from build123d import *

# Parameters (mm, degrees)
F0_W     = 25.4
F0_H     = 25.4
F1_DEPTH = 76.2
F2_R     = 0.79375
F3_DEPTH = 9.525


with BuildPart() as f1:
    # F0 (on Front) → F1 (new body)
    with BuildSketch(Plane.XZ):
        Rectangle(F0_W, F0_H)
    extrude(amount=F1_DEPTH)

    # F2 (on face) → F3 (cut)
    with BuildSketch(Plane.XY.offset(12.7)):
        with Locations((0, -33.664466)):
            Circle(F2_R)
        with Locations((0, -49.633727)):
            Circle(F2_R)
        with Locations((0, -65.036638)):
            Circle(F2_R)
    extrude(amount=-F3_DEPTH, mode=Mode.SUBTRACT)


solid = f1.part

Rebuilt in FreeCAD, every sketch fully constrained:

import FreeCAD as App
import Part
import Sketcher
from FreeCAD import Vector
Q = App.Units.Quantity


def add_polygon(sketch, points):
    """Adds a closed chain of lines whose ends are joined by coincident constraints."""
    first, n = sketch.GeometryCount, len(points)
    for a, b in zip(points, points[1:] + points[:1]):
        sketch.addGeometry(Part.LineSegment(App.Vector(*a, 0), App.Vector(*b, 0)), False)
    for i in range(n):
        sketch.addConstraint(Sketcher.Constraint("Coincident", first + i, 2, first + (i + 1) % n, 1))

doc = App.newDocument("Part")
params = doc.addObject("Spreadsheet::Sheet", "Params")
for row, (alias, value) in enumerate([
    ("sketch1_width", "1 in"),
    ("pad1_length", "3 in"),
    ("sketch2_diameter", "0.0625 in"),
    ("pocket1_length", "0.375 in"),
], start=1):
    params.set(f"A{row}", alias)
    params.set(f"B{row}", "=" + value)
    params.setAlias(f"B{row}", alias)

body = doc.addObject("PartDesign::Body", "Body")

# Sketch on XZ plane
sketch1 = body.newObject("Sketcher::SketchObject", "Sketch")
sketch1.AttachmentSupport = (doc.getObject("XZ_Plane"), [""])
sketch1.MapMode = "FlatFace"
add_polygon(sketch1, [(-12.7, 12.7), (-12.7, -12.7), (12.7, -12.7), (12.7, 12.7)])  # lines 0-3
sketch1.addConstraint(Sketcher.Constraint("Vertical", 0))
sketch1.addConstraint(Sketcher.Constraint("Horizontal", 1))
sketch1.addConstraint(Sketcher.Constraint("Vertical", 2))
sketch1.addConstraint(Sketcher.Constraint("Horizontal", 3))
sketch1.addConstraint(Sketcher.Constraint("Symmetric", 0, 2, 2, 2, -1, 1))
sketch1.addConstraint(Sketcher.Constraint("Equal", 3, 0))
sketch1.addConstraint(Sketcher.Constraint("DistanceX", 1, 1, 1, 2, Q("1 in")))
sketch1.setExpression("Constraints[10]", "Params.sketch1_width")
pad1 = body.newObject("PartDesign::Pad", "Pad")
pad1.Profile = sketch1
pad1.setExpression("Length", "Params.pad1_length")

# Sketch on XY plane
sketch2 = body.newObject("Sketcher::SketchObject", "Sketch001")
sketch2.AttachmentSupport = (doc.getObject("XY_Plane"), [""])
sketch2.MapMode = "FlatFace"
sketch2.AttachmentOffset = App.Placement(Vector(0, 0, 0.5 * 25.4), App.Rotation())
sketch2.addGeometry(Part.Circle(Vector(0, -33.664466, 0), Vector(0, 0, 1), 0.79375), False)
sketch2.addGeometry(Part.Circle(Vector(0, -49.633727, 0), Vector(0, 0, 1), 0.79375), False)
sketch2.addGeometry(Part.Circle(Vector(0, -65.036638, 0), Vector(0, 0, 1), 0.79375), False)
sketch2.addConstraint(Sketcher.Constraint("Equal", 0, 1))
sketch2.addConstraint(Sketcher.Constraint("Equal", 1, 2))
sketch2.addConstraint(Sketcher.Constraint("PointOnObject", 0, 3, -2))
sketch2.addConstraint(Sketcher.Constraint("PointOnObject", 1, 3, -2))
sketch2.addConstraint(Sketcher.Constraint("PointOnObject", 2, 3, -2))
sketch2.addConstraint(Sketcher.Constraint("Diameter", 0, Q("0.0625 in")))
sketch2.addConstraint(Sketcher.Constraint("DistanceY", 1, 3, 0, 3, Q("15.969261 mm")))
sketch2.addConstraint(Sketcher.Constraint("DistanceY", 2, 3, 1, 3, Q("15.402911 mm")))
sketch2.addConstraint(Sketcher.Constraint("DistanceY", 0, 3, -1, 1, Q("33.664466 mm")))
sketch2.setExpression("Constraints[5]", "Params.sketch2_diameter")
pocket1 = body.newObject("PartDesign::Pocket", "Pocket")
pocket1.Profile = sketch2
pocket1.setExpression("Length", "Params.pocket1_length")

doc.recompute()
